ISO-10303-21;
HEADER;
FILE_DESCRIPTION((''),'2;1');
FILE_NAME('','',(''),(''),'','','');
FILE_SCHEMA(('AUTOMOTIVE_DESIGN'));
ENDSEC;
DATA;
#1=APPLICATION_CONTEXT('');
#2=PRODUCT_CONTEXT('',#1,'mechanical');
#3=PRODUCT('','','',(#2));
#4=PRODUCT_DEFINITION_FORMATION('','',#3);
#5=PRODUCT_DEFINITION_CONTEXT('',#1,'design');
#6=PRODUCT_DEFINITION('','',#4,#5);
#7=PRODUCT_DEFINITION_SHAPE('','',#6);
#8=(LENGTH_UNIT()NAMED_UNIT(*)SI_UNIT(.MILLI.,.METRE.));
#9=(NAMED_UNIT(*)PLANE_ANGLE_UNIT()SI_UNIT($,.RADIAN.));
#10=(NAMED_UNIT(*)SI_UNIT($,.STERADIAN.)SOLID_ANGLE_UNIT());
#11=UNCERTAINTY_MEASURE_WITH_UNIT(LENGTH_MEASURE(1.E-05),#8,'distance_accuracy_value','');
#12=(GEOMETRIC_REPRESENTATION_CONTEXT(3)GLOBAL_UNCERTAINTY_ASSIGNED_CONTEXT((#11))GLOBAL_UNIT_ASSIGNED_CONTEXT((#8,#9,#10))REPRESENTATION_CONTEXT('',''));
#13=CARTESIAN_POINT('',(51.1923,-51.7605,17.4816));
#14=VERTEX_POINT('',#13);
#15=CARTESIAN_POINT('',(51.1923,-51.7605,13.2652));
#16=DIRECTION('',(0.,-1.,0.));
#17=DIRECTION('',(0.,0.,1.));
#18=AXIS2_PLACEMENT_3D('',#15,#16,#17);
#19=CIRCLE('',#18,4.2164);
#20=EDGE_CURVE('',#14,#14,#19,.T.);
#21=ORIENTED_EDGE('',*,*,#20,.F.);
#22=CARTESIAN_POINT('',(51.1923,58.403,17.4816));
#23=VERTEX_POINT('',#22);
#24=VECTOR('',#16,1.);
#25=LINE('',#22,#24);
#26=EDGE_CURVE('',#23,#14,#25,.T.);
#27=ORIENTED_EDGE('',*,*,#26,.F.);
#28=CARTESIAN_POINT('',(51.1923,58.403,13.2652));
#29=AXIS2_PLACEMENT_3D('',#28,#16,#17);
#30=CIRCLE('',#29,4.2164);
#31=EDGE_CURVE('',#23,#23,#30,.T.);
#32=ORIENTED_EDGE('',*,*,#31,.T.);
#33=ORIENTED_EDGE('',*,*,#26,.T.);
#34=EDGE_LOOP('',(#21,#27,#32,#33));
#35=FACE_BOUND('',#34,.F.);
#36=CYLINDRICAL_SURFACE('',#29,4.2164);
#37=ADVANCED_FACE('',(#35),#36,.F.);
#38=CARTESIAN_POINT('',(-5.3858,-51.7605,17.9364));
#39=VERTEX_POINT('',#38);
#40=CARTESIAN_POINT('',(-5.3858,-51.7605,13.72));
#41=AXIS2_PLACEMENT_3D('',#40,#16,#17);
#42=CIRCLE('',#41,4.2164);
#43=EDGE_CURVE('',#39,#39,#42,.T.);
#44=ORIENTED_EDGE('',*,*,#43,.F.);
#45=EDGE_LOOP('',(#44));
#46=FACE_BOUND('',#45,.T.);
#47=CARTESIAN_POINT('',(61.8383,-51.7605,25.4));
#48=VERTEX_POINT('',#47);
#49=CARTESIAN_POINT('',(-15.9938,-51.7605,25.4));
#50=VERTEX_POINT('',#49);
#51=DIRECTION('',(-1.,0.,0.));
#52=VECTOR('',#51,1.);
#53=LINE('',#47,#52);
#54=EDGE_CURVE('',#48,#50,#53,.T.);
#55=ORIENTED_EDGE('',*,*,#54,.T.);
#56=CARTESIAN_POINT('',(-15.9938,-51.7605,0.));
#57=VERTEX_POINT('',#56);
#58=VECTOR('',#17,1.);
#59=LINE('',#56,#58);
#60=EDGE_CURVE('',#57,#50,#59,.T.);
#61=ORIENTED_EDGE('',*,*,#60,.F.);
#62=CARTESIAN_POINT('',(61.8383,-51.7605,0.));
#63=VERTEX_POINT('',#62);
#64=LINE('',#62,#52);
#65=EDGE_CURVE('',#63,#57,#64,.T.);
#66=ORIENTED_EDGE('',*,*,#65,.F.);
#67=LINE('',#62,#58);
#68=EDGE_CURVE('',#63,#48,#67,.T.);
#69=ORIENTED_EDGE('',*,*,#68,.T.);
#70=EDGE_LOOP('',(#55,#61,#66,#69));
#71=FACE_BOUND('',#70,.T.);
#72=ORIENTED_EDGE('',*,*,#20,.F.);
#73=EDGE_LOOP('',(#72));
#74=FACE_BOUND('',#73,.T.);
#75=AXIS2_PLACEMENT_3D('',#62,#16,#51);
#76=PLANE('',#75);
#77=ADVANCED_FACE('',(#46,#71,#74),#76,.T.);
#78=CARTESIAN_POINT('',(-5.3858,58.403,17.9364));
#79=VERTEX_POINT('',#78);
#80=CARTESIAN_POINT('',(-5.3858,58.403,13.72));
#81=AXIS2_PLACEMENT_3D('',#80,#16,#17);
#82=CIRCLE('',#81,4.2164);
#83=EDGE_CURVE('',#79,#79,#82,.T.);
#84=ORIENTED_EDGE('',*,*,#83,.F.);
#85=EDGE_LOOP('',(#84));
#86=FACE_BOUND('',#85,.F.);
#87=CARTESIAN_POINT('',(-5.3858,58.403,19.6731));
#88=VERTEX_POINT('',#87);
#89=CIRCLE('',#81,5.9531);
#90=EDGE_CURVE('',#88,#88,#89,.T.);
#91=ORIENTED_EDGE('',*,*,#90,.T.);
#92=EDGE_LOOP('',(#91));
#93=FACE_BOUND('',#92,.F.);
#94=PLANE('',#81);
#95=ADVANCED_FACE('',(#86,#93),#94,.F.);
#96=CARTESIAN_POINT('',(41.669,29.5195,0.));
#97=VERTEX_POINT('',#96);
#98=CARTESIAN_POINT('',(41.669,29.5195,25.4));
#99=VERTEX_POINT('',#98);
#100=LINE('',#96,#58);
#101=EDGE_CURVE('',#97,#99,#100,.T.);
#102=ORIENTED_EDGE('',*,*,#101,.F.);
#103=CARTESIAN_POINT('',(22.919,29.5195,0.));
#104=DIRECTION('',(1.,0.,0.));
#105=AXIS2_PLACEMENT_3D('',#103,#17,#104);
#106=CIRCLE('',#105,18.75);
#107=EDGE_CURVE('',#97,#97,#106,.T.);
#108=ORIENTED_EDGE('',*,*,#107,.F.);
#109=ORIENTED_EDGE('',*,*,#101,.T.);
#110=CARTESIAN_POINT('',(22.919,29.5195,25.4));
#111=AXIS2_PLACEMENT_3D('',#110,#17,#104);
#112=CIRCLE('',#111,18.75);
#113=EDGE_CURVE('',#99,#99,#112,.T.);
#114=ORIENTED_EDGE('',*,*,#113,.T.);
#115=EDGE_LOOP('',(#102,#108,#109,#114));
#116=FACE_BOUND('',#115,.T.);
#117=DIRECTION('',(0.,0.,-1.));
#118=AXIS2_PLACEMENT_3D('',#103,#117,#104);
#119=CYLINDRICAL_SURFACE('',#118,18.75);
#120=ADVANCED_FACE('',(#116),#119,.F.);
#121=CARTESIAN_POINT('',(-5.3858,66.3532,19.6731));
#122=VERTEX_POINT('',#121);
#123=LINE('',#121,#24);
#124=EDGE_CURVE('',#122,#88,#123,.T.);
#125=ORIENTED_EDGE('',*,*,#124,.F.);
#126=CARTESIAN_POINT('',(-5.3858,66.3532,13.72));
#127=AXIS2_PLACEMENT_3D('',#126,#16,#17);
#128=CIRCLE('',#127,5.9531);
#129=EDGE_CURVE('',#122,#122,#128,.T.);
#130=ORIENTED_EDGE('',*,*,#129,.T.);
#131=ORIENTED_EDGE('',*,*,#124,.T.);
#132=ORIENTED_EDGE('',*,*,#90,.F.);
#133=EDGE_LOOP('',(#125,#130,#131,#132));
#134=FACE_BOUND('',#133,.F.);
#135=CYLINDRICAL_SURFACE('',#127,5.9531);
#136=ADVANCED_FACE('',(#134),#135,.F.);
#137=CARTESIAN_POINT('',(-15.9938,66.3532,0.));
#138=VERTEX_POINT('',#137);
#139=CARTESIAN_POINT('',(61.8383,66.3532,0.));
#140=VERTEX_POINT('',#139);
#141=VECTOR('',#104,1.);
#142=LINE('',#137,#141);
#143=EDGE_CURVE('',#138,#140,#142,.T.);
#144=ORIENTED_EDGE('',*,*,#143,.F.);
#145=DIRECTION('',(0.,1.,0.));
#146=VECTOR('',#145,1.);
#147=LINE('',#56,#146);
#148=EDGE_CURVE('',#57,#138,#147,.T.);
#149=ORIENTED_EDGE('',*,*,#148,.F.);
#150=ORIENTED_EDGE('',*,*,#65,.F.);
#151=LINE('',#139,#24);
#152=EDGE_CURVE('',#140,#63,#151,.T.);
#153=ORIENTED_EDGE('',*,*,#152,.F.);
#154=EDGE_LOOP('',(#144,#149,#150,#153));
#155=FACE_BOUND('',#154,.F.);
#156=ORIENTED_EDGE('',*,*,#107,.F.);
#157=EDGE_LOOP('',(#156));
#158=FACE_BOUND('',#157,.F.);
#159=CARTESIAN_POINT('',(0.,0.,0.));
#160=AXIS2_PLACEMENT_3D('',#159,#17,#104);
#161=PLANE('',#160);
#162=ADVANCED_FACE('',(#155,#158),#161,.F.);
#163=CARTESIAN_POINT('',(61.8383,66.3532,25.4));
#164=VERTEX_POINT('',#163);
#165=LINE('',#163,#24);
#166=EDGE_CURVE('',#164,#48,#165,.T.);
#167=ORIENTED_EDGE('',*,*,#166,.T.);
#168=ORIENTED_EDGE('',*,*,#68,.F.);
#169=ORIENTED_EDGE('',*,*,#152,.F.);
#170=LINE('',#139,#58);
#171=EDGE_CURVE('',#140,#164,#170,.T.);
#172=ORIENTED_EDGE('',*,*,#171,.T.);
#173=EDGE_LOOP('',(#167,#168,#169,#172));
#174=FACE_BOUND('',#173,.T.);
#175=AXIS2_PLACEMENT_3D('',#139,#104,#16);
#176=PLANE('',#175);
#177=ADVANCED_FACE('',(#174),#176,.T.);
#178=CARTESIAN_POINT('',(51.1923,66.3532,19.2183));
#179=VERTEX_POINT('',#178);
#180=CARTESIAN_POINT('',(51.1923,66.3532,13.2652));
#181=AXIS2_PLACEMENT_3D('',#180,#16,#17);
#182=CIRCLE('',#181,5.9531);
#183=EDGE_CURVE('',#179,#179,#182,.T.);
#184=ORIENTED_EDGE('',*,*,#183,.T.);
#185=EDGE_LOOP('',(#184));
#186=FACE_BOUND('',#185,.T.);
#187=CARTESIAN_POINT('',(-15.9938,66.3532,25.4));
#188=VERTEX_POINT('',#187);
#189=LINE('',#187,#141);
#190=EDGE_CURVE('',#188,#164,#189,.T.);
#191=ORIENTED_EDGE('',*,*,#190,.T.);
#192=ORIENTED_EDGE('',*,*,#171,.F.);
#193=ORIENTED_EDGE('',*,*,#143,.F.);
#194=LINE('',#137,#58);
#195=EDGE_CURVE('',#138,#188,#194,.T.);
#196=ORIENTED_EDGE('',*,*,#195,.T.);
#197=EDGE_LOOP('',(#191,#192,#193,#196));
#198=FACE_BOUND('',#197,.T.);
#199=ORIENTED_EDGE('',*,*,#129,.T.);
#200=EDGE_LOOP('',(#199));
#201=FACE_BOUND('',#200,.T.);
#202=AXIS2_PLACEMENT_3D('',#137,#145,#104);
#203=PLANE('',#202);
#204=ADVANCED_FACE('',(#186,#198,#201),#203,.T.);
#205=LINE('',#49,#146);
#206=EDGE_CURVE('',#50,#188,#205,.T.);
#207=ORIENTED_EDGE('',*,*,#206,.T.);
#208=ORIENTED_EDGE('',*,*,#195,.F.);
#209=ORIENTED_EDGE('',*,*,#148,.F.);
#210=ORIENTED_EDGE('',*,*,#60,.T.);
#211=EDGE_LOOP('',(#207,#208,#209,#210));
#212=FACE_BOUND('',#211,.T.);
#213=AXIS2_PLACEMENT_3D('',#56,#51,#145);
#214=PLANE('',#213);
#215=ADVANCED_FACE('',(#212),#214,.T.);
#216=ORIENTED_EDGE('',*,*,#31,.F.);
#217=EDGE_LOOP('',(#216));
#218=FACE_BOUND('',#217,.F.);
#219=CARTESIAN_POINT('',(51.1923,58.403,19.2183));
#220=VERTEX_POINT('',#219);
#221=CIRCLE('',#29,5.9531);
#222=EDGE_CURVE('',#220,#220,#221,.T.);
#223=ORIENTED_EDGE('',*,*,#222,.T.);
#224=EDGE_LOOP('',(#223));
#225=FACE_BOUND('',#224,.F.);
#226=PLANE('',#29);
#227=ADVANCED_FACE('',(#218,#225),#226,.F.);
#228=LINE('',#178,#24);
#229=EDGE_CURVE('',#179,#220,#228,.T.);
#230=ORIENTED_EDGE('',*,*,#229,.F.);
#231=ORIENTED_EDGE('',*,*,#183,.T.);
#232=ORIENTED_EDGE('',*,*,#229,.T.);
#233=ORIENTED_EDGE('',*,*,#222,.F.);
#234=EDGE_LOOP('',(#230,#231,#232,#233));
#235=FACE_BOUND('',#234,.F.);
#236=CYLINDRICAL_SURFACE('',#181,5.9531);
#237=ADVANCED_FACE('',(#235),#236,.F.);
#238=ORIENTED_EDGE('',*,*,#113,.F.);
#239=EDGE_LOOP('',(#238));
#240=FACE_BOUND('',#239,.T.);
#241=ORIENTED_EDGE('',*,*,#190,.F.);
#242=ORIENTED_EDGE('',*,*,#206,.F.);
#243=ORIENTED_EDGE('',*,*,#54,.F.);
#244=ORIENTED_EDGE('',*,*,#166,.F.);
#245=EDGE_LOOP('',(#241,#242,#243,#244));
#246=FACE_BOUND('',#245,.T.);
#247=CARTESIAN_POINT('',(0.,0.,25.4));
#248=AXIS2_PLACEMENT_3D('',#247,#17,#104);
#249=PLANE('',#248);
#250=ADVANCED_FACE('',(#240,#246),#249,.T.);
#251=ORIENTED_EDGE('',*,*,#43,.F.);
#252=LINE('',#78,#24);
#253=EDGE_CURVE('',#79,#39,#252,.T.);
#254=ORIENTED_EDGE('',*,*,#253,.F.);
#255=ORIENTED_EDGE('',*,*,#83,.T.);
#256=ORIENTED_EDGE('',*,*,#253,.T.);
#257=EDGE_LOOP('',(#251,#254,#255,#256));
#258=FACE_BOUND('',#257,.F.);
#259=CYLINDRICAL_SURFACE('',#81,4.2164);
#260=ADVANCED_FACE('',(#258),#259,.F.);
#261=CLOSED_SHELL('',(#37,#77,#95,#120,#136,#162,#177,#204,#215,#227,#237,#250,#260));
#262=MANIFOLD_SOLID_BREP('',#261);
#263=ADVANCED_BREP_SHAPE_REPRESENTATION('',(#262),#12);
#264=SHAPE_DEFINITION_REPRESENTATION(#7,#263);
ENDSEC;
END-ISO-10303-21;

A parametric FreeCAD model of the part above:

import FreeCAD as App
import Part
import Sketcher
from FreeCAD import Vector
Q = App.Units.Quantity


def add_polygon(sketch, points):
    """Adds a closed chain of lines whose ends are joined by coincident constraints."""
    first, n = sketch.GeometryCount, len(points)
    for a, b in zip(points, points[1:] + points[:1]):
        sketch.addGeometry(Part.LineSegment(App.Vector(*a, 0), App.Vector(*b, 0)), False)
    for i in range(n):
        sketch.addConstraint(Sketcher.Constraint("Coincident", first + i, 2, first + (i + 1) % n, 1))

doc = App.newDocument("Part")
body = doc.addObject("PartDesign::Body", "Body")

# Sketch on XY plane
sketch1 = body.newObject("Sketcher::SketchObject", "Sketch")
sketch1.AttachmentSupport = (doc.getObject("XY_Plane"), [""])
sketch1.MapMode = "FlatFace"
add_polygon(sketch1, [(61.8383, 66.3532), (-15.9938, 66.3532), (-15.9938, -51.7605), (61.8383, -51.7605)])  # lines 0-3
sketch1.addGeometry(Part.Circle(Vector(22.919, 29.5195, 0), Vector(0, 0, 1), 18.75), False)  # 4
sketch1.addConstraint([
    Sketcher.Constraint("Horizontal", 0),
    Sketcher.Constraint("Vertical", 1),
    Sketcher.Constraint("Horizontal", 2),
    Sketcher.Constraint("Vertical", 3),
    Sketcher.Constraint("DistanceY", 1, 2, 4, 3, Q("3.2 in")),
    Sketcher.Constraint("Diameter", 4, 37.5),
    Sketcher.Constraint("DistanceX", 0, 2, 4, 3, Q("1.532 in")),
    Sketcher.Constraint("DistanceX", 0, 2, 0, 1, 77.832),
    Sketcher.Constraint("DistanceY", 1, 2, 1, 1, 118.1137),
    Sketcher.Constraint("DistanceX", -1, 1, 4, 3, 22.919),
    Sketcher.Constraint("DistanceY", -1, 1, 4, 3, 29.5195),
])
pad1 = body.newObject("PartDesign::Pad", "Pad")
pad1.Profile = sketch1
pad1.Length = Q("1 in")

# Sketch on XZ plane
sketch2 = body.newObject("Sketcher::SketchObject", "Sketch001")
sketch2.AttachmentSupport = (doc.getObject("XZ_Plane"), [""])
sketch2.MapMode = "FlatFace"
sketch2.AttachmentOffset = App.Placement(Vector(0, 0, -66.3532), App.Rotation())
sketch2.addGeometry(Part.Circle(Vector(-5.3858, 13.72, 0), Vector(0, 0, 1), 4.2164), False)
sketch2.addConstraint([
    Sketcher.Constraint("Diameter", 0, Q("0.332 in")),
    Sketcher.Constraint("DistanceX", 0, 3, -1, 1, 5.3858),
    Sketcher.Constraint("DistanceY", -1, 1, 0, 3, 13.72),
])
doc.recompute()
hole = body.newObject("PartDesign::Hole", "Hole")
hole.Profile = sketch2
hole.ThreadType = "None"
hole.Diameter = Q("0.332 in")
hole.DepthType = "ThroughAll"
hole.HoleCutType = "Counterbore"
hole.HoleCutDiameter = Q("0.468748 in")
hole.HoleCutDepth = Q("0.313 in")
hole.Reversed = True

# Sketch on XZ plane
sketch3 = body.newObject("Sketcher::SketchObject", "Sketch002")
sketch3.AttachmentSupport = (doc.getObject("XZ_Plane"), [""])
sketch3.MapMode = "FlatFace"
sketch3.AttachmentOffset = App.Placement(Vector(0, 0, -66.3532), App.Rotation())
sketch3.addGeometry(Part.Circle(Vector(51.1923, 13.2652, 0), Vector(0, 0, 1), 4.2164), False)
sketch3.addConstraint([
    Sketcher.Constraint("Diameter", 0, Q("0.332 in")),
    Sketcher.Constraint("DistanceX", -1, 1, 0, 3, 51.1923),
    Sketcher.Constraint("DistanceY", -1, 1, 0, 3, 13.2652),
])
doc.recompute()
hole2 = body.newObject("PartDesign::Hole", "Hole001")
hole2.Profile = sketch3
hole2.ThreadType = "None"
hole2.Diameter = Q("0.332 in")
hole2.DepthType = "ThroughAll"
hole2.HoleCutType = "Counterbore"
hole2.HoleCutDiameter = Q("0.468748 in")
hole2.HoleCutDepth = Q("0.313 in")
hole2.Reversed = True

doc.recompute()
